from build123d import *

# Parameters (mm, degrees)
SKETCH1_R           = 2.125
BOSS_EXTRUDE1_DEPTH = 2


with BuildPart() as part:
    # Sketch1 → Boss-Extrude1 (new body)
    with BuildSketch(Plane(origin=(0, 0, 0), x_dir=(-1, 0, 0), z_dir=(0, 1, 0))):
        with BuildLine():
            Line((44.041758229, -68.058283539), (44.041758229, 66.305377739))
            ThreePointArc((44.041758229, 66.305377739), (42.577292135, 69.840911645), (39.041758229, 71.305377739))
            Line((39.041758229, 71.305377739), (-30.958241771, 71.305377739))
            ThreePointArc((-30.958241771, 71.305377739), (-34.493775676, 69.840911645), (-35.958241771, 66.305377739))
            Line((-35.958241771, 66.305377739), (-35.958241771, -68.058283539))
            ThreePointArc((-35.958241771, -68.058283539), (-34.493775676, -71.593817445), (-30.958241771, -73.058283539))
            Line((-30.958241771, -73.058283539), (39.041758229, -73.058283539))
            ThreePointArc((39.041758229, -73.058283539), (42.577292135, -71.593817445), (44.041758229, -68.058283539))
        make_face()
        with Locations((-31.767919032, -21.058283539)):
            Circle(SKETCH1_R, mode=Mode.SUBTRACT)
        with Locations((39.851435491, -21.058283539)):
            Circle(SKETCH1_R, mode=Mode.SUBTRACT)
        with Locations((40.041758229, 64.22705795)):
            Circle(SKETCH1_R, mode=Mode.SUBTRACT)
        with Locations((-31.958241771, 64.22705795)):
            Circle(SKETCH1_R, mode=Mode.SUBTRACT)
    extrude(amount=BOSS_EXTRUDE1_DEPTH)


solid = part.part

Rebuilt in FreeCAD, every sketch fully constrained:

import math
import FreeCAD as App
import Part
import Sketcher
from FreeCAD import Vector

doc = App.newDocument("Part")
params = doc.addObject("Spreadsheet::Sheet", "Params")
for row, (alias, value) in enumerate([
    ("sketch1_radius", "5 mm"),
    ("sketch1_diameter", "4.25 mm"),
    ("sketch1_width", "70 mm"),
    ("pad1_length", "2 mm"),
], start=1):
    params.set(f"A{row}", alias)
    params.set(f"B{row}", "=" + value)
    params.setAlias(f"B{row}", alias)

body = doc.addObject("PartDesign::Body", "Body")

sketch1 = body.newObject("Sketcher::SketchObject", "Sketch")
sketch1.AttachmentSupport = (doc.getObject("XZ_Plane"), [""])
sketch1.MapMode = "FlatFace"
sketch1.addGeometry([
    Part.LineSegment(Vector(-44.041758, -68.058284, 0), Vector(-44.041758, 66.305378, 0)),
    Part.ArcOfCircle(Part.Circle(Vector(-39.041758, 66.305378, 0), Vector(0, 0, 1), 5), math.radians(90), math.radians(180)),
    Part.LineSegment(Vector(-39.041758, 71.305378, 0), Vector(30.958242, 71.305378, 0)),
    Part.ArcOfCircle(Part.Circle(Vector(30.958242, 66.305378, 0), Vector(0, 0, 1), 5), math.radians(0), math.radians(90)),
    Part.LineSegment(Vector(35.958242, 66.305378, 0), Vector(35.958242, -68.058284, 0)),
    Part.ArcOfCircle(Part.Circle(Vector(30.958242, -68.058284, 0), Vector(0, 0, 1), 5), math.radians(-90), math.radians(0)),
    Part.LineSegment(Vector(30.958242, -73.058284, 0), Vector(-39.041758, -73.058284, 0)),
    Part.ArcOfCircle(Part.Circle(Vector(-39.041758, -68.058284, 0), Vector(0, 0, 1), 5), math.radians(180), math.radians(270)),
    Part.Circle(Vector(31.767919, -21.058284, 0), Vector(0, 0, 1), 2.125),
    Part.Circle(Vector(-39.851435, -21.058284, 0), Vector(0, 0, 1), 2.125),
    Part.Circle(Vector(31.958242, 64.227058, 0), Vector(0, 0, 1), 2.125),
    Part.Circle(Vector(-40.041758, 64.227058, 0), Vector(0, 0, 1), 2.125),
], False)
sketch1.addConstraint([
    Sketcher.Constraint("Tangent", 0, 2, 1, 2),
    Sketcher.Constraint("Tangent", 1, 1, 2, 1),
    Sketcher.Constraint("Tangent", 2, 2, 3, 2),
    Sketcher.Constraint("Tangent", 3, 1, 4, 1),
    Sketcher.Constraint("Tangent", 4, 2, 5, 2),
    Sketcher.Constraint("Tangent", 5, 1, 6, 1),
    Sketcher.Constraint("Tangent", 6, 2, 7, 2),
    Sketcher.Constraint("Tangent", 7, 1, 0, 1),
    Sketcher.Constraint("Vertical", 0),
    Sketcher.Constraint("Horizontal", 2),
    Sketcher.Constraint("Vertical", 4),
    Sketcher.Constraint("Horizontal", 6),
    Sketcher.Constraint("Equal", 1, 3),
    Sketcher.Constraint("Equal", 3, 5),
    Sketcher.Constraint("Equal", 5, 7),
    Sketcher.Constraint("Equal", 8, 9),
    Sketcher.Constraint("Equal", 9, 10),
    Sketcher.Constraint("Equal", 10, 11),
    Sketcher.Constraint("Horizontal", 8, 3, 9, 3),
    Sketcher.Constraint("Horizontal", 10, 3, 11, 3),
    Sketcher.Constraint("Radius", 1, 5.0),
    Sketcher.Constraint("Diameter", 8, 4.25),
    Sketcher.Constraint("DistanceX", 2, 1, 2, 2, 70.0),
    Sketcher.Constraint("DistanceY", 5, 3, 8, 3, 47.0),
    Sketcher.Constraint("DistanceX", 3, 3, 10, 3, 1.0),
    Sketcher.Constraint("DistanceX", 11, 3, 1, 3, 1.0),
    Sketcher.Constraint("DistanceY", 0, 1, 0, 2, 134.363661),
    Sketcher.Constraint("DistanceX", 1, 3, -1, 1, 39.041758),
    Sketcher.Constraint("DistanceX", -1, 1, 8, 3, 31.767919),
    Sketcher.Constraint("DistanceY", 10, 3, 3, 3, 2.07832),
    Sketcher.Constraint("DistanceY", -1, 1, 1, 3, 66.305378),
    Sketcher.Constraint("DistanceX", 9, 3, -1, 1, 39.851435),
])
sketch1.setExpression("Constraints[20]", "Params.sketch1_radius")
sketch1.setExpression("Constraints[21]", "Params.sketch1_diameter")
sketch1.setExpression("Constraints[22]", "Params.sketch1_width")
pad1 = body.newObject("PartDesign::Pad", "Pad")
pad1.Profile = sketch1
pad1.setExpression("Length", "Params.pad1_length")
pad1.Reversed = True

doc.recompute()
